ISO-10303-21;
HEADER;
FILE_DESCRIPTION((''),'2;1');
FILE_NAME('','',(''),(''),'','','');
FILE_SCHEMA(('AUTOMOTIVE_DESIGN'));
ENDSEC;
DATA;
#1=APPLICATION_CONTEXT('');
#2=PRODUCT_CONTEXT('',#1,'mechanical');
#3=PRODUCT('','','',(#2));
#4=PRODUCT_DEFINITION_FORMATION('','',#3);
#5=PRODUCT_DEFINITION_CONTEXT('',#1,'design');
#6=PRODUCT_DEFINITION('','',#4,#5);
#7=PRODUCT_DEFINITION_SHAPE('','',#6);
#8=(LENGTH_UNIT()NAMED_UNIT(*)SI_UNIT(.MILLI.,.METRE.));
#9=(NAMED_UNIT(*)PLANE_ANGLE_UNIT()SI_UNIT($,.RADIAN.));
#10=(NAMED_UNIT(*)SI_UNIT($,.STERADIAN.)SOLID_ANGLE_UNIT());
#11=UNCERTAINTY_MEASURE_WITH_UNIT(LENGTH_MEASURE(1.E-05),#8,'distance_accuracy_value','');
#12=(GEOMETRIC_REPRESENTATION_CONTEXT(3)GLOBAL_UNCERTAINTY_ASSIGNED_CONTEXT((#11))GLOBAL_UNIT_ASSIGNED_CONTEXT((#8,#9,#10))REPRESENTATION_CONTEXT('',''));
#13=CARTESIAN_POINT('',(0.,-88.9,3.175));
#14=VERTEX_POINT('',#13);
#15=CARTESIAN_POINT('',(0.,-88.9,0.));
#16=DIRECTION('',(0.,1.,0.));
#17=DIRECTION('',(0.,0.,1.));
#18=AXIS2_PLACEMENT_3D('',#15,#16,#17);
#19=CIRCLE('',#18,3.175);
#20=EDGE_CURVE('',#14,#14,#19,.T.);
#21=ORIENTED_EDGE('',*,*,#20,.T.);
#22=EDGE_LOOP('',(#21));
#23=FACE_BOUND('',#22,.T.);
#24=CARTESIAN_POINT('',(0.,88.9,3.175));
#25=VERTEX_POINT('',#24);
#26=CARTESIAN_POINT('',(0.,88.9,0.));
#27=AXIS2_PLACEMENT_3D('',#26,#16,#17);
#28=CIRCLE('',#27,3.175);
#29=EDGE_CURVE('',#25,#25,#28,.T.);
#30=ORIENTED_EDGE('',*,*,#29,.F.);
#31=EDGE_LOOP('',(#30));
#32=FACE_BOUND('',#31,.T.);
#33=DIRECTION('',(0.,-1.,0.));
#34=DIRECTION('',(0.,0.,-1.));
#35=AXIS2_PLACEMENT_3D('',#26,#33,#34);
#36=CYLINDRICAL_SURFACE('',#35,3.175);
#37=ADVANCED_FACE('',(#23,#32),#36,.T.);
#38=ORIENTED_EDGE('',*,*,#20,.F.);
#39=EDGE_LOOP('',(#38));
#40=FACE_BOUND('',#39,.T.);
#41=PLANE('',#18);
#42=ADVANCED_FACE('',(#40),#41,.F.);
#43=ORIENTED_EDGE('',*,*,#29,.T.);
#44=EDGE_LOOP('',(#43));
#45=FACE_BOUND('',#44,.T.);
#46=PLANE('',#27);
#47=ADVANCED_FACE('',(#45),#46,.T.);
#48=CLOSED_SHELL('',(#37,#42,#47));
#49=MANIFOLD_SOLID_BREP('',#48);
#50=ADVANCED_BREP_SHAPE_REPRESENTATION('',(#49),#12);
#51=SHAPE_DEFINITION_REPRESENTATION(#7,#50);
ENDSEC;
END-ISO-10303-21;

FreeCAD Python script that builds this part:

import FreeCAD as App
import Part
import Sketcher
Q = App.Units.Quantity

doc = App.newDocument("Part")
body = doc.addObject("PartDesign::Body", "Body")

# Sketch on XZ plane
sketch1 = doc.addObject("Sketcher::SketchObject", "Sketch")
body.addObject(sketch1)
sketch1.AttachmentSupport = (doc.XZ_Plane, [""])
sketch1.MapMode = "FlatFace"
sketch1.addGeometry(Part.Circle(App.Vector(0, 0, 0), App.Vector(0, 0, 1), 3.2), False)
sketch1.addConstraint([
    Sketcher.Constraint("Coincident", 0, 3, -1, 1),
    Sketcher.Constraint("Diameter", 0, Q("0.25 in")),
])
pad1 = doc.addObject("PartDesign::Pad", "Pad")
body.addObject(pad1)
pad1.Profile = sketch1
pad1.Length = Q("7 in")
pad1.Midplane = True

doc.recompute()
